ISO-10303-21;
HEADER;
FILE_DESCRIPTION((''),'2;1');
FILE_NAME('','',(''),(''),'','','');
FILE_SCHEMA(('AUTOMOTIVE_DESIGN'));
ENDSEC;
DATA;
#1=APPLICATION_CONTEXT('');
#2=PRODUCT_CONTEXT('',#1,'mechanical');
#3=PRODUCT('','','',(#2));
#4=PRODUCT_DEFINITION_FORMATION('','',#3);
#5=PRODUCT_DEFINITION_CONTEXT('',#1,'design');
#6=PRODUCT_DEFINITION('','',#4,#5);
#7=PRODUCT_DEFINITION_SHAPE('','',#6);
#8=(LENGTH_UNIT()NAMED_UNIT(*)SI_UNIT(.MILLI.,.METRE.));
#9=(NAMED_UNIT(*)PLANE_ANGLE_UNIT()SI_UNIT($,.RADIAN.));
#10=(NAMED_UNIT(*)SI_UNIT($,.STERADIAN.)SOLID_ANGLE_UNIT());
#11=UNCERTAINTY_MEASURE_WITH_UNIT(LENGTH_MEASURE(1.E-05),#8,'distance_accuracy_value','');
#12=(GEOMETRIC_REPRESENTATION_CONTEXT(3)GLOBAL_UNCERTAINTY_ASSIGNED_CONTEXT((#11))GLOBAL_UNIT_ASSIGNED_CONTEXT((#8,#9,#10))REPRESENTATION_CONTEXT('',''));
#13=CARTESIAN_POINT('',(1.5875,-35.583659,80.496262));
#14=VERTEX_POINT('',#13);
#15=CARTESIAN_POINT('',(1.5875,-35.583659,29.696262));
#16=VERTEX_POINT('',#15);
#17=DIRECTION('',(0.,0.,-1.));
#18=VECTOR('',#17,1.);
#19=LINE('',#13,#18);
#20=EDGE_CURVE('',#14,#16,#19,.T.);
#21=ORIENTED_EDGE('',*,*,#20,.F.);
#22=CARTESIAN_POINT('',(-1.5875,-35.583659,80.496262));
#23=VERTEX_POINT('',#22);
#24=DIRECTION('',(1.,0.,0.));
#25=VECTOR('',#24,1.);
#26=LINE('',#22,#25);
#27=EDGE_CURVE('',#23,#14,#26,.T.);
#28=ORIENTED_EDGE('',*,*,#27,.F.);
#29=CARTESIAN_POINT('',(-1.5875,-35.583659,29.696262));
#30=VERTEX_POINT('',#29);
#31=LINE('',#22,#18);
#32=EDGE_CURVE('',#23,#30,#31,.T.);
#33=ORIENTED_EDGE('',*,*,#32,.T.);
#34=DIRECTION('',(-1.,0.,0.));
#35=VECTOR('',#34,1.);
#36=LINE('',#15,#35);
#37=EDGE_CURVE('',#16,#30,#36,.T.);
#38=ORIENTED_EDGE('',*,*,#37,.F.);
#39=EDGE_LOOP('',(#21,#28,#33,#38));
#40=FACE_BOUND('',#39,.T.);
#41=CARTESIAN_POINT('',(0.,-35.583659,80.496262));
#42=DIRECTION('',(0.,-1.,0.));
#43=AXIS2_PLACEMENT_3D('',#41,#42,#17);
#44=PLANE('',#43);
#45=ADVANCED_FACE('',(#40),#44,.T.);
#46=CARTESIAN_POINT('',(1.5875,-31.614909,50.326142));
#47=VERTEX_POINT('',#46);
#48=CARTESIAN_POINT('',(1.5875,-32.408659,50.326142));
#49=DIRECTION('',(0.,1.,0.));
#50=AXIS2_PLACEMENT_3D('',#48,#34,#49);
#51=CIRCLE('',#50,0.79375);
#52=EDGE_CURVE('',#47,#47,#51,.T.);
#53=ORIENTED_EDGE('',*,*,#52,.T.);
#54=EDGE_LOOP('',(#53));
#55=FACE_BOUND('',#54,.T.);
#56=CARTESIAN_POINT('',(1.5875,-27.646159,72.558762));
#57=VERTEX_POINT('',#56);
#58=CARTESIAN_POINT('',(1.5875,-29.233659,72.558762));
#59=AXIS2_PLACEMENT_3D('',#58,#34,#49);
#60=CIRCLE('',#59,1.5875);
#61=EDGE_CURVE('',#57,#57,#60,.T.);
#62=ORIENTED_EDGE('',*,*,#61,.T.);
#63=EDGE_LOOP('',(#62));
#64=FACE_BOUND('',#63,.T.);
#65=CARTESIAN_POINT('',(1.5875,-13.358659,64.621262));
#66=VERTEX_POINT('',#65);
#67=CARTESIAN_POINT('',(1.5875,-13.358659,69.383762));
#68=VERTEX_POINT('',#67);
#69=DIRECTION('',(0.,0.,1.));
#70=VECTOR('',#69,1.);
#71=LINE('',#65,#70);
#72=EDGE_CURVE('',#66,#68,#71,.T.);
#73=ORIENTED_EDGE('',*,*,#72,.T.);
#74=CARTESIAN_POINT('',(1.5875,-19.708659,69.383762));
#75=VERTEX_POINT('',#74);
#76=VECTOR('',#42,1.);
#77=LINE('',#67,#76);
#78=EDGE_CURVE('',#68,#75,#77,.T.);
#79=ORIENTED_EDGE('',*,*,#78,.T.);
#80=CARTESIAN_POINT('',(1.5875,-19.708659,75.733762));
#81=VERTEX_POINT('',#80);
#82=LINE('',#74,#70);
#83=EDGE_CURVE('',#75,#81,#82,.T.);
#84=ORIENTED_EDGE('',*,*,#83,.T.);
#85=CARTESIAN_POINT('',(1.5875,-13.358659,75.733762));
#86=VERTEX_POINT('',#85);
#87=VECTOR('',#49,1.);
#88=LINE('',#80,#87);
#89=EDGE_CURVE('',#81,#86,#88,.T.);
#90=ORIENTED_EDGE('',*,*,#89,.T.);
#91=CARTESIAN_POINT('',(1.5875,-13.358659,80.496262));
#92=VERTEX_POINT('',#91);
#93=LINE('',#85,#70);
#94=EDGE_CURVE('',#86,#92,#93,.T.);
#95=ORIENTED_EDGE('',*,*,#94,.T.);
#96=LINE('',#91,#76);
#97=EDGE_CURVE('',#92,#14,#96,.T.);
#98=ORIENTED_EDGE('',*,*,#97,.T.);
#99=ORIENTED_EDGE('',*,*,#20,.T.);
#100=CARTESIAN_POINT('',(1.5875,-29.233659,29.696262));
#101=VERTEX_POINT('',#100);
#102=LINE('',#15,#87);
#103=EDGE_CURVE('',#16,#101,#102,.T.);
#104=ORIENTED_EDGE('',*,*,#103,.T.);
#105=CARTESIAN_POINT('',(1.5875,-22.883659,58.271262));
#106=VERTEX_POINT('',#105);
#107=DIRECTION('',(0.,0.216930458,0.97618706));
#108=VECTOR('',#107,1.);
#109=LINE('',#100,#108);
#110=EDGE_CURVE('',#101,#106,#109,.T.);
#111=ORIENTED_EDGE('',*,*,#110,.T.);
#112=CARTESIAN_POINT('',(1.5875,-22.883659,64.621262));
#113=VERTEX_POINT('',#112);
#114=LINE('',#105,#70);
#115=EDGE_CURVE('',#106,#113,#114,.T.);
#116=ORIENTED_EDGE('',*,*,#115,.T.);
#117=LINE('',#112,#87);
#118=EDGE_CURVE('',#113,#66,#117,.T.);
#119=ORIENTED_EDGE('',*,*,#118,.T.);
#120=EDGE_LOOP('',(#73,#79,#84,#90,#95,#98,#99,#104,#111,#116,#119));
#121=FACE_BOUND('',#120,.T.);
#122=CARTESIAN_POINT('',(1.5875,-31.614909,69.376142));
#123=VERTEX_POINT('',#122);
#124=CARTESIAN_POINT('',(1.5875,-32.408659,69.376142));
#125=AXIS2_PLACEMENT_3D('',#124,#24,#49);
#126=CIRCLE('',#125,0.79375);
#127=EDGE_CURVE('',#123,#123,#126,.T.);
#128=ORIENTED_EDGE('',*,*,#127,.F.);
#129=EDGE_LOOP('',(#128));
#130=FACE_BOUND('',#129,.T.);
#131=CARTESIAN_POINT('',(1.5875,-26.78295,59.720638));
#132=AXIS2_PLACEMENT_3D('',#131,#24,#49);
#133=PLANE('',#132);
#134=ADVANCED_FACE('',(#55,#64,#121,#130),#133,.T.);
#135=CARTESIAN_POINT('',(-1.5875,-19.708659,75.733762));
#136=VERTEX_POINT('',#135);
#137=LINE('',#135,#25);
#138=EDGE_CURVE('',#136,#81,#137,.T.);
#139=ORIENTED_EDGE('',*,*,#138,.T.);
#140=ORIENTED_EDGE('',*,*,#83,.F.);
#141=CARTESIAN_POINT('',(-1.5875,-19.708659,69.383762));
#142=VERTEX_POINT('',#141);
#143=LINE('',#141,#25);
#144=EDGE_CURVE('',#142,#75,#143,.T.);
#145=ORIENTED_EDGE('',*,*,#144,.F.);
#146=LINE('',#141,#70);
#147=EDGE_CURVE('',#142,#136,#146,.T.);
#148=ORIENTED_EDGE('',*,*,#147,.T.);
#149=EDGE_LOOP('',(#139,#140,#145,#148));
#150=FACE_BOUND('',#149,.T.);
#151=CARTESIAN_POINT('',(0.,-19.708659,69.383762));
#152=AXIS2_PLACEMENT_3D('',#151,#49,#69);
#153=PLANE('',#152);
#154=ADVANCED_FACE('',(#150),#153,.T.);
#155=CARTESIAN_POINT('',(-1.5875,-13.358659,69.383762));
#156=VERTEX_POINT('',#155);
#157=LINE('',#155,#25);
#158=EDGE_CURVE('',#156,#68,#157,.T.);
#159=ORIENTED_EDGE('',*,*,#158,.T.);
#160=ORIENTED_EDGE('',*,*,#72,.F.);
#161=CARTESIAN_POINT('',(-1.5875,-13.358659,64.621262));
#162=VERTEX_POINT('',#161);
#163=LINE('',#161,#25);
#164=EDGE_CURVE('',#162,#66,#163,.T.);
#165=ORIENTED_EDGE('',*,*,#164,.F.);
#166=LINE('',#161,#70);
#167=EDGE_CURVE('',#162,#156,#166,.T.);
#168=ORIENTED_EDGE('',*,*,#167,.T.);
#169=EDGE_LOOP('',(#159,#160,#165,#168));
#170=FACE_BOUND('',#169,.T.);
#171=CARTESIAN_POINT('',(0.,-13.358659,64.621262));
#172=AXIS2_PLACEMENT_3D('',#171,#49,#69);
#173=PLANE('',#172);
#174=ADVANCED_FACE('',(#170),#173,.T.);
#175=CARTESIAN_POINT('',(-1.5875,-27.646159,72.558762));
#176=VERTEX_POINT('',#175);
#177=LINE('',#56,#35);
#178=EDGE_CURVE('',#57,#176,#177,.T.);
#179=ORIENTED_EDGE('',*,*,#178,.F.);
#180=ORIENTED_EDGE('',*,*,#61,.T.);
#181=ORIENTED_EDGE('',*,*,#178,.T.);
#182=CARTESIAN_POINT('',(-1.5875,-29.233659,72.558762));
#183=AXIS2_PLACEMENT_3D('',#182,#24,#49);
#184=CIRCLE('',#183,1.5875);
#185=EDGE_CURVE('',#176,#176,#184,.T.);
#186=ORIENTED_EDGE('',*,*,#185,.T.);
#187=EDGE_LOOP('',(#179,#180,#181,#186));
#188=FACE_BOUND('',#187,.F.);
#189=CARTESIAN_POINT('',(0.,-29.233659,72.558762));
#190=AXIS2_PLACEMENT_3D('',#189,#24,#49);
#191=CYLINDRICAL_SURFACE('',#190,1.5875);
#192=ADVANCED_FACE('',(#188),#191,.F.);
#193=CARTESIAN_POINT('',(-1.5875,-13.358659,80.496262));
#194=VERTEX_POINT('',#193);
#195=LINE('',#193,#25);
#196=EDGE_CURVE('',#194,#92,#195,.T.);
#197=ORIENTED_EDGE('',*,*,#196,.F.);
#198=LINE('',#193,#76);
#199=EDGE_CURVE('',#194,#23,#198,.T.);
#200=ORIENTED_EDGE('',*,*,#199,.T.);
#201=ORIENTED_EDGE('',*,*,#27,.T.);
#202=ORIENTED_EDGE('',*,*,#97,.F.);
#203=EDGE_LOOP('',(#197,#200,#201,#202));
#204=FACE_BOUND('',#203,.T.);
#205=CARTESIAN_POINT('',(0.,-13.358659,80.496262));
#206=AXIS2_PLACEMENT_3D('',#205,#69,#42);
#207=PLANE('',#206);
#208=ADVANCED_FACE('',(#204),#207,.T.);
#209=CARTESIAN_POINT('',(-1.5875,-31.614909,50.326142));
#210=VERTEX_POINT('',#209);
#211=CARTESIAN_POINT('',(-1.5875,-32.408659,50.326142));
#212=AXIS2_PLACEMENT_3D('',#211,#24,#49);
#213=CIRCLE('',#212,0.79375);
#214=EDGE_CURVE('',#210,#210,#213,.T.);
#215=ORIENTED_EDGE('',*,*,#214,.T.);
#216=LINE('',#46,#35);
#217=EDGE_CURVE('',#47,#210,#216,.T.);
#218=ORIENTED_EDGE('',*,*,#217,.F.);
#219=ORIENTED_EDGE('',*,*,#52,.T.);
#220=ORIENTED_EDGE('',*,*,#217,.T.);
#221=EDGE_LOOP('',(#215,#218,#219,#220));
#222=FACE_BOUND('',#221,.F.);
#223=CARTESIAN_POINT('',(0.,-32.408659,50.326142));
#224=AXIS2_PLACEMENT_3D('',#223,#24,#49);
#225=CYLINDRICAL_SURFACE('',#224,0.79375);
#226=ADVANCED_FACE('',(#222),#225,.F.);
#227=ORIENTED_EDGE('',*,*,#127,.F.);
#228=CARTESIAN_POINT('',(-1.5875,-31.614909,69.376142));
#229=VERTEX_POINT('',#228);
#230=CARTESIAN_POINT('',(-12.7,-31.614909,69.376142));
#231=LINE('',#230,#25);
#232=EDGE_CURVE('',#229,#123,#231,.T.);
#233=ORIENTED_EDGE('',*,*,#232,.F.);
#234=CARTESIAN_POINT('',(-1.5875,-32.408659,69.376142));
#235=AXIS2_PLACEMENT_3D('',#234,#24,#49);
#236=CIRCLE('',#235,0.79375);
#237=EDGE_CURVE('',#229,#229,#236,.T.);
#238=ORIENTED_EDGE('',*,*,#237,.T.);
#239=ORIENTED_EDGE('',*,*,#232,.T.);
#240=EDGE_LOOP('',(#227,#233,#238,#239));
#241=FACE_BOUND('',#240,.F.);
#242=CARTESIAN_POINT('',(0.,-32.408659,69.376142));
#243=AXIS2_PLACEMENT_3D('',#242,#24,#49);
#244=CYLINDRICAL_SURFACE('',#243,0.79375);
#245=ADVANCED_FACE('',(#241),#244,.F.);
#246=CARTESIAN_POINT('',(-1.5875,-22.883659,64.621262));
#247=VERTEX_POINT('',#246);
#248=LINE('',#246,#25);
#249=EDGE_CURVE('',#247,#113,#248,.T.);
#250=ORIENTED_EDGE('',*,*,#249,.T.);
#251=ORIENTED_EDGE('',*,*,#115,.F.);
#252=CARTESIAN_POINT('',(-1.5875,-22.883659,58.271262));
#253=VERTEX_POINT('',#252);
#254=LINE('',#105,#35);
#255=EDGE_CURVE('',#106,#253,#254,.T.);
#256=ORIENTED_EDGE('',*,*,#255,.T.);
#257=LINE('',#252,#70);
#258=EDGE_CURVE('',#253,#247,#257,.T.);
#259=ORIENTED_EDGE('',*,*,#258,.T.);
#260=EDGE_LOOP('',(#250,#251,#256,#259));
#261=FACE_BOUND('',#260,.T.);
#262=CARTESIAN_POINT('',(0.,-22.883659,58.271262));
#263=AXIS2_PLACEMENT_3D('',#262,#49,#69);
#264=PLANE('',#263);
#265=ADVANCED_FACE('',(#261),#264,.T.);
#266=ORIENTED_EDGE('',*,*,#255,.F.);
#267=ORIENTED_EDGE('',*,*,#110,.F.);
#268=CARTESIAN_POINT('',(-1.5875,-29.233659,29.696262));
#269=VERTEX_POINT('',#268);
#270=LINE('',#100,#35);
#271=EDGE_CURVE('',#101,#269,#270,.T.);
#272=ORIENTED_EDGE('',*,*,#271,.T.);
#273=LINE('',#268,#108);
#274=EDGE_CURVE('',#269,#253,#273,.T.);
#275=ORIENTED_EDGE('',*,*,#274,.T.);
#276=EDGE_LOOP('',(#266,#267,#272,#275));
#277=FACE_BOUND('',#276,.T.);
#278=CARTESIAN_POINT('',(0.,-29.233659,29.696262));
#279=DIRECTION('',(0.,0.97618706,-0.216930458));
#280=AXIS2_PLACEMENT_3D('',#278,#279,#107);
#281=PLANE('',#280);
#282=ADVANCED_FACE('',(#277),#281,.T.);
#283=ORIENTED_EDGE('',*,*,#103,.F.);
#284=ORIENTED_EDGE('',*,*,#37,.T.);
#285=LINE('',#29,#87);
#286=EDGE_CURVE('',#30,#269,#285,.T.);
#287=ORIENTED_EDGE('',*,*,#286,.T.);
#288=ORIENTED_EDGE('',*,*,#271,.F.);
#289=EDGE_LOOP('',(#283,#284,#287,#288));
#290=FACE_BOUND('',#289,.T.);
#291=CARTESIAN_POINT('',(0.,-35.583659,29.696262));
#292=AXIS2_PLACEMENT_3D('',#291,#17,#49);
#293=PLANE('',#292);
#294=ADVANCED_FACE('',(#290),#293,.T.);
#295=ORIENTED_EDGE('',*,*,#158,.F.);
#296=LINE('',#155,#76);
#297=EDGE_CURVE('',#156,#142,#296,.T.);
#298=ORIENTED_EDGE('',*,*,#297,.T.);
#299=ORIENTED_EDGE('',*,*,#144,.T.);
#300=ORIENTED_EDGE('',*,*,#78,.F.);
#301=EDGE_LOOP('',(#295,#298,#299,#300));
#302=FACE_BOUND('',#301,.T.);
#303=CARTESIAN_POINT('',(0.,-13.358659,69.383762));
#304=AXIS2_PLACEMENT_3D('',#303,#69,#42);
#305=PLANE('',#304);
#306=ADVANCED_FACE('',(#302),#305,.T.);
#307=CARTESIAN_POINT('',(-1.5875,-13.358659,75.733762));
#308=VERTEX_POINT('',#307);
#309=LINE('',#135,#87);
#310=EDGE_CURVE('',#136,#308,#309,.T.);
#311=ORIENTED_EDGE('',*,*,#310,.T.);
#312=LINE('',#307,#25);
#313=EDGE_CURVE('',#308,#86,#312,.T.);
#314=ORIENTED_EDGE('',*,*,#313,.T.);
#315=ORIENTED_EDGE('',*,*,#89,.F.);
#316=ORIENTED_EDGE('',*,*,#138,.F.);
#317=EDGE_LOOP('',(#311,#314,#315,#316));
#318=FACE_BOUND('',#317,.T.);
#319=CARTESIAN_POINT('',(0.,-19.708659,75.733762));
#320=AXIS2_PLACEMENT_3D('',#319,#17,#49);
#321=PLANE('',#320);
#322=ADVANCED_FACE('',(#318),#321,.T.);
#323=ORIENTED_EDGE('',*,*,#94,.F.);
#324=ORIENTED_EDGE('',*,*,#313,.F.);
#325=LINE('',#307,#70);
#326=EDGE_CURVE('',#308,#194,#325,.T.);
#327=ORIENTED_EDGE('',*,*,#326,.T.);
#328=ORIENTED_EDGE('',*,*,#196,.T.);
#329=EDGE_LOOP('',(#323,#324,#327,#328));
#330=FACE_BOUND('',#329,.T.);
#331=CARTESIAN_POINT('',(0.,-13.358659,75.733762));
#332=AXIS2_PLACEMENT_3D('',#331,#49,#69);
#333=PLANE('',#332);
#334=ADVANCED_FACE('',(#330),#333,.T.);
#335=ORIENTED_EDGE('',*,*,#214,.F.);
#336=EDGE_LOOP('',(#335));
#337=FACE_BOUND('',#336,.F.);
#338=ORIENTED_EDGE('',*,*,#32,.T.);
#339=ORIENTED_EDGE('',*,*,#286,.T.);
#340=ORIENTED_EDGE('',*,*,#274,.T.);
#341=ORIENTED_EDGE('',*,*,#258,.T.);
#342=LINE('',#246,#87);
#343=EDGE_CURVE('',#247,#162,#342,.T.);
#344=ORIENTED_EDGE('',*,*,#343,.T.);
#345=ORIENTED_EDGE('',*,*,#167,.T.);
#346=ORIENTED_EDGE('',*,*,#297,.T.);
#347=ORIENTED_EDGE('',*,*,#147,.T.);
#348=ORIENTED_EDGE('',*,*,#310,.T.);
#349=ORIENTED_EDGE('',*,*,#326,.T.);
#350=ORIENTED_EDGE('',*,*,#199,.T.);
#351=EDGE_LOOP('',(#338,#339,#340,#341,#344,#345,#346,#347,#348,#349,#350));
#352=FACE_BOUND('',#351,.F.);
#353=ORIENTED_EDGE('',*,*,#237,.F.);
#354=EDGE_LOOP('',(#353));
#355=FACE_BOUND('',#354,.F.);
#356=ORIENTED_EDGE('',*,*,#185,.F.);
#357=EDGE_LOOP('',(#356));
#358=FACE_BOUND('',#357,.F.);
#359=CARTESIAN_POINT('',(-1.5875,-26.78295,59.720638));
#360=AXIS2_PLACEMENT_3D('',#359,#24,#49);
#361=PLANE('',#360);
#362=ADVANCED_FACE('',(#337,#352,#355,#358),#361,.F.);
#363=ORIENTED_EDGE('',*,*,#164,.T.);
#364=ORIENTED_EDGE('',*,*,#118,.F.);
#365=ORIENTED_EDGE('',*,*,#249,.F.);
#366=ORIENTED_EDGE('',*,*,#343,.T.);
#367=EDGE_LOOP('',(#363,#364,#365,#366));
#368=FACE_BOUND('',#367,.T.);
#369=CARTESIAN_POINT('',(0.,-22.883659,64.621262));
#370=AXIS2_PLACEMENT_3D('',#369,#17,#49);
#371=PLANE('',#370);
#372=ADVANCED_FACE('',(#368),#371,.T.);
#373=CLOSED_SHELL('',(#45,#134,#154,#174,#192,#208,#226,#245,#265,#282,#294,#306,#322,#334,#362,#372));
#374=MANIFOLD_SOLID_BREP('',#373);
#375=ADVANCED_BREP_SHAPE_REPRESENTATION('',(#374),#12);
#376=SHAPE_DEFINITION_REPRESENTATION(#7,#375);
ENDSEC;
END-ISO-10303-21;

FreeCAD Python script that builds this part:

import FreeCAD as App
import Part
import Sketcher

V = App.Vector
Q = App.Units.Quantity

doc = App.newDocument("Part")
params = doc.addObject("Spreadsheet::Sheet", "Params")
for row, (alias, value) in enumerate([
    ("sketch1_height", "2 in"),
    ("sketch1_width", "0.25 in"),
    ("sketch1_width2", "0.375 in"),
    ("sketch1_height2", "0.1875 in"),
    ("pad1_length", "0.125 in"),
    ("sketch2_diameter", "0.125 in"),
    ("sketch2_diameter2", "0.0625 in"),
    ("pocket1_length", "1 in"),
], start=1):
    params.set(f"A{row}", alias)
    params.set(f"B{row}", "=" + value)
    params.setAlias(f"B{row}", alias)

body = doc.addObject("PartDesign::Body", "Body")

sketch1 = body.newObject("Sketcher::SketchObject", "Sketch")
sketch1.AttachmentSupport = (doc.getObject("YZ_Plane"), [""])
sketch1.MapMode = "FlatFace"
sketch1.addGeometry([
    Part.LineSegment(V(-22.883659, 58.271262, 0), V(-22.883659, 64.621262, 0)),
    Part.LineSegment(V(-22.883659, 64.621262, 0), V(-13.358659, 64.621262, 0)),
    Part.LineSegment(V(-13.358659, 64.621262, 0), V(-13.358659, 69.383762, 0)),
    Part.LineSegment(V(-13.358659, 69.383762, 0), V(-19.708659, 69.383762, 0)),
    Part.LineSegment(V(-19.708659, 69.383762, 0), V(-19.708659, 75.733762, 0)),
    Part.LineSegment(V(-19.708659, 75.733762, 0), V(-13.358659, 75.733762, 0)),
    Part.LineSegment(V(-13.358659, 75.733762, 0), V(-13.358659, 80.496262, 0)),
    Part.LineSegment(V(-13.358659, 80.496262, 0), V(-35.583659, 80.496262, 0)),
    Part.LineSegment(V(-35.583659, 80.496262, 0), V(-35.583659, 29.696262, 0)),
    Part.LineSegment(V(-35.583659, 29.696262, 0), V(-29.233659, 29.696262, 0)),
    Part.LineSegment(V(-29.233659, 29.696262, 0), V(-22.883659, 58.271262, 0)),
], False)
sketch1.addConstraint([
    Sketcher.Constraint("Coincident", 0, 2, 1, 1),
    Sketcher.Constraint("Coincident", 1, 2, 2, 1),
    Sketcher.Constraint("Coincident", 2, 2, 3, 1),
    Sketcher.Constraint("Coincident", 3, 2, 4, 1),
    Sketcher.Constraint("Coincident", 4, 2, 5, 1),
    Sketcher.Constraint("Coincident", 5, 2, 6, 1),
    Sketcher.Constraint("Coincident", 6, 2, 7, 1),
    Sketcher.Constraint("Coincident", 7, 2, 8, 1),
    Sketcher.Constraint("Coincident", 8, 2, 9, 1),
    Sketcher.Constraint("Coincident", 9, 2, 10, 1),
    Sketcher.Constraint("Coincident", 10, 2, 0, 1),
    Sketcher.Constraint("Vertical", 0),
    Sketcher.Constraint("Horizontal", 1),
    Sketcher.Constraint("Vertical", 2),
    Sketcher.Constraint("Horizontal", 3),
    Sketcher.Constraint("Vertical", 4),
    Sketcher.Constraint("Horizontal", 5),
    Sketcher.Constraint("Vertical", 6),
    Sketcher.Constraint("Horizontal", 7),
    Sketcher.Constraint("Vertical", 8),
    Sketcher.Constraint("Horizontal", 9),
    Sketcher.Constraint("Vertical", 2, 2, 5, 2),
    Sketcher.Constraint("Equal", 5, 9),
    Sketcher.Constraint("Equal", 9, 0),
    Sketcher.Constraint("Equal", 0, 4),
    Sketcher.Constraint("Equal", 2, 6),
    Sketcher.Constraint("DistanceY", 8, 2, 8, 1, Q("2 in")),
    Sketcher.Constraint("DistanceX", 3, 2, 3, 1, Q("0.25 in")),
    Sketcher.Constraint("DistanceX", 7, 2, 0, 2, Q("0.5 in")),
    Sketcher.Constraint("DistanceX", 1, 1, 1, 2, Q("0.375 in")),
    Sketcher.Constraint("DistanceY", 2, 1, 2, 2, Q("0.1875 in")),
    Sketcher.Constraint("DistanceX", 0, 2, -1, 1, Q("22.883659 mm")),
    Sketcher.Constraint("DistanceY", -1, 1, 0, 2, Q("64.621262 mm")),
])
sketch1.setExpression("Constraints[26]", "Params.sketch1_height")
sketch1.setExpression("Constraints[27]", "Params.sketch1_width")
sketch1.setExpression("Constraints[29]", "Params.sketch1_width2")
sketch1.setExpression("Constraints[30]", "Params.sketch1_height2")
pad1 = body.newObject("PartDesign::Pad", "Pad")
pad1.Profile = sketch1
pad1.setExpression("Length", "Params.pad1_length")
pad1.Midplane = True

sketch2 = body.newObject("Sketcher::SketchObject", "Sketch001")
sketch2.AttachmentSupport = (doc.getObject("YZ_Plane"), [""])
sketch2.MapMode = "FlatFace"
sketch2.addGeometry([
    Part.Circle(V(-29.233659, 72.558762, 0), V(0, 0, 1), 1.5875),
    Part.Circle(V(-32.408659, 50.326142, 0), V(0, 0, 1), 0.79375),
    Part.Circle(V(-32.408659, 69.376142, 0), V(0, 0, 1), 0.79375),
], False)
sketch2.addConstraint([
    Sketcher.Constraint("Equal", 1, 2),
    Sketcher.Constraint("Vertical", 1, 3, 2, 3),
    Sketcher.Constraint("Diameter", 0, Q("0.125 in")),
    Sketcher.Constraint("Diameter", 1, Q("0.0625 in")),
    Sketcher.Constraint("DistanceY", 1, 3, 2, 3, Q("0.75 in")),
    Sketcher.Constraint("DistanceX", 1, 3, 0, 3, Q("0.125 in")),
    Sketcher.Constraint("DistanceY", 1, 3, 0, 3, Q("0.8753 in")),
    Sketcher.Constraint("DistanceX", 0, 3, -1, 1, Q("29.233659 mm")),
    Sketcher.Constraint("DistanceY", -1, 1, 0, 3, Q("72.558762 mm")),
])
sketch2.setExpression("Constraints[2]", "Params.sketch2_diameter")
sketch2.setExpression("Constraints[3]", "Params.sketch2_diameter2")
pocket1 = body.newObject("PartDesign::Pocket", "Pocket")
pocket1.Profile = sketch2
pocket1.setExpression("Length", "Params.pocket1_length")
pocket1.Midplane = True

doc.recompute()
